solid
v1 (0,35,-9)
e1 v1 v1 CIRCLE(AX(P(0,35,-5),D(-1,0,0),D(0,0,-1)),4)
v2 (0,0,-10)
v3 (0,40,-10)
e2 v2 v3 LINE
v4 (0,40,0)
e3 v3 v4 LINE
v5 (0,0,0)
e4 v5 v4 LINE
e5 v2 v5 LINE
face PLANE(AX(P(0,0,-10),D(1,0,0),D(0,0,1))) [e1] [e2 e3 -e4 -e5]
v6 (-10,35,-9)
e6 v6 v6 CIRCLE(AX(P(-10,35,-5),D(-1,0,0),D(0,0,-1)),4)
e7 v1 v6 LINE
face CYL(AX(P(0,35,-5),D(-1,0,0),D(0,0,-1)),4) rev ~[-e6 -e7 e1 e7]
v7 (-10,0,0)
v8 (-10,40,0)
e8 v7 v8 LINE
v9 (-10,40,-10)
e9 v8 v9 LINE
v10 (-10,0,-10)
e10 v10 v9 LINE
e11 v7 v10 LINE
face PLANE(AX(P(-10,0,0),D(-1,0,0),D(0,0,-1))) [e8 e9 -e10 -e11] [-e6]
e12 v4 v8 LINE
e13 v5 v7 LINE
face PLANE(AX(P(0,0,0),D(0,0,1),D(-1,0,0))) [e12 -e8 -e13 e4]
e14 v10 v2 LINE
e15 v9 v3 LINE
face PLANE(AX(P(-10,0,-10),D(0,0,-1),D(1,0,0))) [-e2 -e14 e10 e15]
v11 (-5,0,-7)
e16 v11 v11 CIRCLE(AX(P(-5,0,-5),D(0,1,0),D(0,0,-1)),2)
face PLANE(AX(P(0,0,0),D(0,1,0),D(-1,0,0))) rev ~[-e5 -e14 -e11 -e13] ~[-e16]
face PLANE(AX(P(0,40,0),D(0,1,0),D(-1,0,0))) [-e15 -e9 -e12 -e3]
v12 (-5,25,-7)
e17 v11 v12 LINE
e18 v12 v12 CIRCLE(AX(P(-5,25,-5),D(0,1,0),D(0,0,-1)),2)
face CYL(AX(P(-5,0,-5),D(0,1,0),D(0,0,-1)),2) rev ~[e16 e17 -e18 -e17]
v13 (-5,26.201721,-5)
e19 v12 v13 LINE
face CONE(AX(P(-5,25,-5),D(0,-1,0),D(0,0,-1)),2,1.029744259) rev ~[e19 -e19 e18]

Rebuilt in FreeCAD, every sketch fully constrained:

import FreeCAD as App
import Part
import Sketcher
Q = App.Units.Quantity


def add_polygon(sketch, points):
    """Adds a closed chain of lines whose ends are joined by coincident constraints."""
    first, n = sketch.GeometryCount, len(points)
    for a, b in zip(points, points[1:] + points[:1]):
        sketch.addGeometry(Part.LineSegment(App.Vector(*a, 0), App.Vector(*b, 0)), False)
    for i in range(n):
        sketch.addConstraint(Sketcher.Constraint("Coincident", first + i, 2, first + (i + 1) % n, 1))

doc = App.newDocument("Part")
body = doc.addObject("PartDesign::Body", "Body")

sketch1 = body.newObject("Sketcher::SketchObject", "Sketch")
sketch1.AttachmentSupport = (doc.getObject("XZ_Plane"), [""])
sketch1.MapMode = "FlatFace"
add_polygon(sketch1, [(-10, 0), (0, 0), (0, -10), (-10, -10)])
sketch1.addConstraint([
    Sketcher.Constraint("Horizontal", 0),
    Sketcher.Constraint("Vertical", 1),
    Sketcher.Constraint("Horizontal", 2),
    Sketcher.Constraint("Vertical", 3),
    Sketcher.Constraint("Coincident", 0, 2, -1, 1),
    Sketcher.Constraint("Equal", 2, 1),
    Sketcher.Constraint("DistanceX", 0, 1, 0, 2, Q("10 mm")),
])
pad1 = body.newObject("PartDesign::Pad", "Pad")
pad1.Profile = sketch1
pad1.Length = 40
pad1.Reversed = True

sketch2 = body.newObject("Sketcher::SketchObject", "Sketch001")
sketch2.AttachmentSupport = (doc.getObject("YZ_Plane"), [""])
sketch2.MapMode = "FlatFace"
sketch2.addGeometry(Part.Circle(App.Vector(35, -5, 0), App.Vector(0, 0, 1), 4), False)
sketch2.addConstraint([
    Sketcher.Constraint("Diameter", 0, Q("8 mm")),
    Sketcher.Constraint("DistanceX", -1, 1, 0, 3, Q("35 mm")),
    Sketcher.Constraint("DistanceY", 0, 3, -1, 1, Q("5 mm")),
])
doc.recompute()
hole = body.newObject("PartDesign::Hole", "Hole")
hole.Profile = sketch2
hole.ThreadType = "None"
hole.Diameter = 8
hole.DepthType = "Dimension"
hole.Depth = 10
hole.DrillPoint = "Angled"
hole.DrillPointAngle = 118

sketch3 = body.newObject("Sketcher::SketchObject", "Sketch002")
sketch3.AttachmentSupport = (doc.getObject("XZ_Plane"), [""])
sketch3.MapMode = "FlatFace"
sketch3.addGeometry(Part.Circle(App.Vector(-5, -5, 0), App.Vector(0, 0, 1), 2), False)
sketch3.addConstraint([
    Sketcher.Constraint("Diameter", 0, Q("4 mm")),
    Sketcher.Constraint("DistanceX", 0, 3, -1, 1, Q("5 mm")),
    Sketcher.Constraint("DistanceY", 0, 3, -1, 1, Q("5 mm")),
])
doc.recompute()
hole2 = body.newObject("PartDesign::Hole", "Hole001")
hole2.Profile = sketch3
hole2.ThreadType = "None"
hole2.Diameter = 4
hole2.DepthType = "Dimension"
hole2.Depth = 25
hole2.DrillPoint = "Angled"
hole2.DrillPointAngle = 118

doc.recompute()
